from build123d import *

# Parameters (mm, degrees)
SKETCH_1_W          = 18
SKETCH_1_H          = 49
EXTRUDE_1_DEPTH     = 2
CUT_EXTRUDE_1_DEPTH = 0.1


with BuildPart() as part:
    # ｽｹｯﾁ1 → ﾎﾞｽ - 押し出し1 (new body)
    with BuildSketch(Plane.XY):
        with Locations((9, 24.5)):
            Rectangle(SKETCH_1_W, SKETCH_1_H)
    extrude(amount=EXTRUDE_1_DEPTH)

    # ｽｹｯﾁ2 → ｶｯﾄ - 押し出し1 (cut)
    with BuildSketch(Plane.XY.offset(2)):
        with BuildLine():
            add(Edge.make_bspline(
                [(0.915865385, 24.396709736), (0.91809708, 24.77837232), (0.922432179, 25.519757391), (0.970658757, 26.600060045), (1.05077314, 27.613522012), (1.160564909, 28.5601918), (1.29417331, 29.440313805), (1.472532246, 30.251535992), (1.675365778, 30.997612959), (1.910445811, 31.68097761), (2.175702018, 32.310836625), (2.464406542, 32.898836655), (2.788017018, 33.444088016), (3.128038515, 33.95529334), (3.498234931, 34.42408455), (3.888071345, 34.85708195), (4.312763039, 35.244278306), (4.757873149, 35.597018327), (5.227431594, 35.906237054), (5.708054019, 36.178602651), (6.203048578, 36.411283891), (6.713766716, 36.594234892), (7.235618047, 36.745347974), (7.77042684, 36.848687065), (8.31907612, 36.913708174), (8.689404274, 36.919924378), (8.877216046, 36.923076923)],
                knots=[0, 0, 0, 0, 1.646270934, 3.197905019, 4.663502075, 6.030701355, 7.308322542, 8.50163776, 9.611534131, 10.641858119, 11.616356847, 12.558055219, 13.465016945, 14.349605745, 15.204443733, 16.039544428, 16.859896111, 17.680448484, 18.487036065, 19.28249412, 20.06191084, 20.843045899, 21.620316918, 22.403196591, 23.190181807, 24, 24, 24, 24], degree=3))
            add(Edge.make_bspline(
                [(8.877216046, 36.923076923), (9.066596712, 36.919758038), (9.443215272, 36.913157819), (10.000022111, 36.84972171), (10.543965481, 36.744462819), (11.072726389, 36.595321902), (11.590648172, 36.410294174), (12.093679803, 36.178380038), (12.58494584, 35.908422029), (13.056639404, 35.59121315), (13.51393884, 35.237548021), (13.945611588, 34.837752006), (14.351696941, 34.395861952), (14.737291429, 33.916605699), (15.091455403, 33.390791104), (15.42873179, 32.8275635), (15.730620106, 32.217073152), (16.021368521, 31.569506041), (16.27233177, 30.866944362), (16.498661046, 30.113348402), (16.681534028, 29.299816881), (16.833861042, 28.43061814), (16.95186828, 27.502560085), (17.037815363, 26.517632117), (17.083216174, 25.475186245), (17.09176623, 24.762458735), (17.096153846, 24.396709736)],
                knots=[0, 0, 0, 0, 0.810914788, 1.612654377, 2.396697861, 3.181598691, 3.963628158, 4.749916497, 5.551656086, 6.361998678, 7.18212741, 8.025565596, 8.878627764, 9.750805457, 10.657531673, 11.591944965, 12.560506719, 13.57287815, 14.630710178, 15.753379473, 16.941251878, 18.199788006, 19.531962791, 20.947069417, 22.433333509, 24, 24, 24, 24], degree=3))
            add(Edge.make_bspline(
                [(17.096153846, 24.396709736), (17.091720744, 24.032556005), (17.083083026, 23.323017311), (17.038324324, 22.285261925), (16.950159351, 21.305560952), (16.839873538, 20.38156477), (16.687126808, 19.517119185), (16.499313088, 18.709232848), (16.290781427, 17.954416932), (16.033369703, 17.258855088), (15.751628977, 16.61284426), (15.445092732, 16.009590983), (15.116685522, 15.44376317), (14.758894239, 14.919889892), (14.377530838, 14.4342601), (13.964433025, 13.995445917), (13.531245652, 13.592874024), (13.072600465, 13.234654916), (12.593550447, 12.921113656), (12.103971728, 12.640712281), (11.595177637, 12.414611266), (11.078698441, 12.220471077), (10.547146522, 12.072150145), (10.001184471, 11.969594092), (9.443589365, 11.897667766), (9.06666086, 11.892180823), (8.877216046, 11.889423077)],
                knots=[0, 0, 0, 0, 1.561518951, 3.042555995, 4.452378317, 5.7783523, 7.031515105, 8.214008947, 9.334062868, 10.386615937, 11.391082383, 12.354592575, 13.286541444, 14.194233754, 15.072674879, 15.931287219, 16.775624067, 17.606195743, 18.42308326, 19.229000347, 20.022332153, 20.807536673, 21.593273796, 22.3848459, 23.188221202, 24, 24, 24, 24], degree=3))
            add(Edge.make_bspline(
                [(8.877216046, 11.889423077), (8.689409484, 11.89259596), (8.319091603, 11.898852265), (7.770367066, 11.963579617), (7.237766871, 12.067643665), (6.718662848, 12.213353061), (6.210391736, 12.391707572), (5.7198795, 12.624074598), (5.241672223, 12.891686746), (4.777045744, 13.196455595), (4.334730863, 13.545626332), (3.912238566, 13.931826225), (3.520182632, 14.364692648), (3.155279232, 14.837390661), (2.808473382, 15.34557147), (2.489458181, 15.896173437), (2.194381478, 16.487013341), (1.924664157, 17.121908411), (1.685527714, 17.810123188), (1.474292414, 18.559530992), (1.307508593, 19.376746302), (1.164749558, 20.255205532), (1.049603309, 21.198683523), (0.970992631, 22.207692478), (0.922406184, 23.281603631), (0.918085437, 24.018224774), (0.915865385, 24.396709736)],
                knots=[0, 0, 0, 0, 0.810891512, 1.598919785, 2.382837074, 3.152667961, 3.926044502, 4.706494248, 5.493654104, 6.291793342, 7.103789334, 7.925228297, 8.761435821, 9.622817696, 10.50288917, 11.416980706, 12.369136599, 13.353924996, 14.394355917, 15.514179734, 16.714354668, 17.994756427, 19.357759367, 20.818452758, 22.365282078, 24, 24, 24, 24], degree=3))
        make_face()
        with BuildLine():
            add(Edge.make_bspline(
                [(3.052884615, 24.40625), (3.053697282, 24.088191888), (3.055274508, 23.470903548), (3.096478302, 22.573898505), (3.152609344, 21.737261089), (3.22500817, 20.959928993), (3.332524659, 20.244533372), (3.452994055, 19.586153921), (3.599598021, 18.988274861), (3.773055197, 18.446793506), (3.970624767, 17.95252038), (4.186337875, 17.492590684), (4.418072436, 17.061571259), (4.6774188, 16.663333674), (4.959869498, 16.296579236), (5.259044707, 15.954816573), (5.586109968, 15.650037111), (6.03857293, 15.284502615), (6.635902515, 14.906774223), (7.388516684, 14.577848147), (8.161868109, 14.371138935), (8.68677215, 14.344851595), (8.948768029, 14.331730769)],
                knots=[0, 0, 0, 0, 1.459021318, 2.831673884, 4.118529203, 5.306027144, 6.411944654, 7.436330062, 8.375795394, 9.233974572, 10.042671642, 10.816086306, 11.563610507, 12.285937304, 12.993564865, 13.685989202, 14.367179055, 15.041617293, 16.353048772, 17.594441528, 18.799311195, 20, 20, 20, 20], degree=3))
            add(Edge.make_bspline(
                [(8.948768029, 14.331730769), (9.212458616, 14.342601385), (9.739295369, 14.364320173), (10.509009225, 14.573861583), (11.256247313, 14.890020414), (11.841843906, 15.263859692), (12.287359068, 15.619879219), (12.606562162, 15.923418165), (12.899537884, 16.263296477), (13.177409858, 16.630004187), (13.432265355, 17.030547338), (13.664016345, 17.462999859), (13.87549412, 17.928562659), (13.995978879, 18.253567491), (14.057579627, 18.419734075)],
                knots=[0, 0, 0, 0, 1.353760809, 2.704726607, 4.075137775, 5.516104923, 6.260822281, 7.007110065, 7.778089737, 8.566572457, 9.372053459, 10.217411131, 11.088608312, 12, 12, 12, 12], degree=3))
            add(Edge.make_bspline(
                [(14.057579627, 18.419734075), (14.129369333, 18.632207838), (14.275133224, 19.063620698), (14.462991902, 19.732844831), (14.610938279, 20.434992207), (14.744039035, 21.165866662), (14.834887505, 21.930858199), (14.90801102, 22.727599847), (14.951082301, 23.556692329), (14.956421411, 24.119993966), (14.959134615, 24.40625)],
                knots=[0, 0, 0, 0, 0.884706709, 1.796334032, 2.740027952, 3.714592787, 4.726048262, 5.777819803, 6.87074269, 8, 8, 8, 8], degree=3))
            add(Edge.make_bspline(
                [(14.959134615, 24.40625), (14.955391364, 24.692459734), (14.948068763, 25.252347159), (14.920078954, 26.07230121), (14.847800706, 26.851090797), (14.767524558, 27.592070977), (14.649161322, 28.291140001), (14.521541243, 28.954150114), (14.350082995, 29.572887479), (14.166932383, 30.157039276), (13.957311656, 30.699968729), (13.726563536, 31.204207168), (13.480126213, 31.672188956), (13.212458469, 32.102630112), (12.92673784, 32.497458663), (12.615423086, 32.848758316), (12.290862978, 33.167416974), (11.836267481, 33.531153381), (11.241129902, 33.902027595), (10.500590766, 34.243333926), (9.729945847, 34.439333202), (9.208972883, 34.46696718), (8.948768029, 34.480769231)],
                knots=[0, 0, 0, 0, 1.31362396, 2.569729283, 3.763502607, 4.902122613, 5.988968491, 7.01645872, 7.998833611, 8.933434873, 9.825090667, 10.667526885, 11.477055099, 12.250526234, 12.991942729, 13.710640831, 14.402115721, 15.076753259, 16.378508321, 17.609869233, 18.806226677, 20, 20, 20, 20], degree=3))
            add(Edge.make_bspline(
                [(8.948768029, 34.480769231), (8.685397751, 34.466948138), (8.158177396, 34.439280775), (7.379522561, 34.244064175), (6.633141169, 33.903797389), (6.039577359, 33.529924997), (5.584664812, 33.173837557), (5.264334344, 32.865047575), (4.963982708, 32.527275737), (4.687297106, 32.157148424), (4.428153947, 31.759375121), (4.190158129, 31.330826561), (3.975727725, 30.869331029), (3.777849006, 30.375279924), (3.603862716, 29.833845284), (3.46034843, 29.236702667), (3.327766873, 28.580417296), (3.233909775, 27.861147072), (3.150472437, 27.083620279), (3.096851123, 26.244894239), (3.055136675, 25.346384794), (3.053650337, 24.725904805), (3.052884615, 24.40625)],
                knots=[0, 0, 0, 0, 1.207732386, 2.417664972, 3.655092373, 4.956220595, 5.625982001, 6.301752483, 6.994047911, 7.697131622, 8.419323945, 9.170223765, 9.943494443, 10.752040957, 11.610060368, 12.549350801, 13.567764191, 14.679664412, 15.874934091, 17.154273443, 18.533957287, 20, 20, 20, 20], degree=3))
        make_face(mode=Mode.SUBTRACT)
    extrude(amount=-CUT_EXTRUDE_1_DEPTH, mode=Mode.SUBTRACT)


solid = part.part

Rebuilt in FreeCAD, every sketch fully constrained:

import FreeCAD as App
import Part
import Sketcher
from FreeCAD import Vector

doc = App.newDocument("Part")
body = doc.addObject("PartDesign::Body", "Body")

# Sketch on XY plane
sketch1 = body.newObject("Sketcher::SketchObject", "Sketch")
sketch1.AttachmentSupport = (doc.getObject("XY_Plane"), [""])
sketch1.MapMode = "FlatFace"
sketch1.addGeometry(Part.LineSegment(Vector(0, 49, 0), Vector(0, 0, 0)), False)
sketch1.addGeometry(Part.LineSegment(Vector(0, 0, 0), Vector(18, 0, 0)), False)
sketch1.addGeometry(Part.LineSegment(Vector(18, 0, 0), Vector(18, 49, 0)), False)
sketch1.addGeometry(Part.LineSegment(Vector(18, 49, 0), Vector(0, 49, 0)), False)
sketch1.addConstraint(Sketcher.Constraint("Coincident", 0, 2, 1, 1))
sketch1.addConstraint(Sketcher.Constraint("Coincident", 1, 2, 2, 1))
sketch1.addConstraint(Sketcher.Constraint("Coincident", 2, 2, 3, 1))
sketch1.addConstraint(Sketcher.Constraint("Coincident", 3, 2, 0, 1))
sketch1.addConstraint(Sketcher.Constraint("Vertical", 0))
sketch1.addConstraint(Sketcher.Constraint("Horizontal", 1))
sketch1.addConstraint(Sketcher.Constraint("Vertical", 2))
sketch1.addConstraint(Sketcher.Constraint("Horizontal", 3))
sketch1.addConstraint(Sketcher.Constraint("Coincident", 0, 2, -1, 1))
sketch1.addConstraint(Sketcher.Constraint("DistanceX", 1, 1, 1, 2, 18.0))
sketch1.addConstraint(Sketcher.Constraint("DistanceY", 0, 2, 0, 1, 49.0))
pad1 = body.newObject("PartDesign::Pad", "Pad")
pad1.Profile = sketch1
pad1.Length = 2

# Sketch on XY plane
sketch2 = body.newObject("Sketcher::SketchObject", "Sketch001")
sketch2.AttachmentSupport = (doc.getObject("XY_Plane"), [""])
sketch2.MapMode = "FlatFace"
sketch2.AttachmentOffset = App.Placement(Vector(0, 0, 2), App.Rotation())
sketch2.addGeometry(Part.BSplineCurve([Vector(0.915865, 24.39671, 0), Vector(0.918097, 24.778372, 0), Vector(0.922432, 25.519757, 0), Vector(0.970659, 26.60006, 0), Vector(1.050773, 27.613522, 0), Vector(1.160565, 28.560192, 0), Vector(1.294173, 29.440314, 0), Vector(1.472532, 30.251536, 0), Vector(1.675366, 30.997613, 0), Vector(1.910446, 31.680978, 0), Vector(2.175702, 32.310837, 0), Vector(2.464407, 32.898837, 0), Vector(2.788017, 33.444088, 0), Vector(3.128039, 33.955293, 0), Vector(3.498235, 34.424085, 0), Vector(3.888071, 34.857082, 0), Vector(4.312763, 35.244278, 0), Vector(4.757873, 35.597018, 0), Vector(5.227432, 35.906237, 0), Vector(5.708054, 36.178603, 0), Vector(6.203049, 36.411284, 0), Vector(6.713767, 36.594235, 0), Vector(7.235618, 36.745348, 0), Vector(7.770427, 36.848687, 0), Vector(8.319076, 36.913708, 0), Vector(8.689404, 36.919924, 0), Vector(8.877216, 36.923077, 0)], [4, 1, 1, 1, 1, 1, 1, 1, 1, 1, 1, 1, 1, 1, 1, 1, 1, 1, 1, 1, 1, 1, 1, 1, 4], [0, 1.646270934, 3.197905019, 4.663502075, 6.030701355, 7.308322542, 8.50163776, 9.611534131, 10.641858119, 11.616356847, 12.558055219, 13.465016945, 14.349605745, 15.204443733, 16.039544428, 16.859896111, 17.680448484, 18.487036065, 19.28249412, 20.06191084, 20.843045899, 21.620316918, 22.403196591, 23.190181807, 24], False, 3, [1, 1, 1, 1, 1, 1, 1, 1, 1, 1, 1, 1, 1, 1, 1, 1, 1, 1, 1, 1, 1, 1, 1, 1, 1, 1, 1], False), False)
sketch2.addGeometry(Part.BSplineCurve([Vector(8.877216, 11.889423, 0), Vector(8.689409, 11.892596, 0), Vector(8.319092, 11.898852, 0), Vector(7.770367, 11.96358, 0), Vector(7.237767, 12.067644, 0), Vector(6.718663, 12.213353, 0), Vector(6.210392, 12.391708, 0), Vector(5.71988, 12.624075, 0), Vector(5.241672, 12.891687, 0), Vector(4.777046, 13.196456, 0), Vector(4.334731, 13.545626, 0), Vector(3.912239, 13.931826, 0), Vector(3.520183, 14.364693, 0), Vector(3.155279, 14.837391, 0), Vector(2.808473, 15.345571, 0), Vector(2.489458, 15.896173, 0), Vector(2.194381, 16.487013, 0), Vector(1.924664, 17.121908, 0), Vector(1.685528, 17.810123, 0), Vector(1.474292, 18.559531, 0), Vector(1.307509, 19.376746, 0), Vector(1.16475, 20.255206, 0), Vector(1.049603, 21.198684, 0), Vector(0.970993, 22.207692, 0), Vector(0.922406, 23.281604, 0), Vector(0.918085, 24.018225, 0), Vector(0.915865, 24.39671, 0)], [4, 1, 1, 1, 1, 1, 1, 1, 1, 1, 1, 1, 1, 1, 1, 1, 1, 1, 1, 1, 1, 1, 1, 1, 4], [0, 0.810891512, 1.598919785, 2.382837074, 3.152667961, 3.926044502, 4.706494248, 5.493654104, 6.291793342, 7.103789334, 7.925228297, 8.761435821, 9.622817696, 10.50288917, 11.416980706, 12.369136599, 13.353924996, 14.394355917, 15.514179734, 16.714354668, 17.994756427, 19.357759367, 20.818452758, 22.365282078, 24], False, 3, [1, 1, 1, 1, 1, 1, 1, 1, 1, 1, 1, 1, 1, 1, 1, 1, 1, 1, 1, 1, 1, 1, 1, 1, 1, 1, 1], False), False)
sketch2.addGeometry(Part.BSplineCurve([Vector(17.096154, 24.39671, 0), Vector(17.091721, 24.032556, 0), Vector(17.083083, 23.323017, 0), Vector(17.038324, 22.285262, 0), Vector(16.950159, 21.305561, 0), Vector(16.839874, 20.381565, 0), Vector(16.687127, 19.517119, 0), Vector(16.499313, 18.709233, 0), Vector(16.290781, 17.954417, 0), Vector(16.03337, 17.258855, 0), Vector(15.751629, 16.612844, 0), Vector(15.445093, 16.009591, 0), Vector(15.116686, 15.443763, 0), Vector(14.758894, 14.91989, 0), Vector(14.377531, 14.43426, 0), Vector(13.964433, 13.995446, 0), Vector(13.531246, 13.592874, 0), Vector(13.0726, 13.234655, 0), Vector(12.59355, 12.921114, 0), Vector(12.103972, 12.640712, 0), Vector(11.595178, 12.414611, 0), Vector(11.078698, 12.220471, 0), Vector(10.547147, 12.07215, 0), Vector(10.001184, 11.969594, 0), Vector(9.443589, 11.897668, 0), Vector(9.066661, 11.892181, 0), Vector(8.877216, 11.889423, 0)], [4, 1, 1, 1, 1, 1, 1, 1, 1, 1, 1, 1, 1, 1, 1, 1, 1, 1, 1, 1, 1, 1, 1, 1, 4], [0, 1.561518951, 3.042555995, 4.452378317, 5.7783523, 7.031515105, 8.214008947, 9.334062868, 10.386615937, 11.391082383, 12.354592575, 13.286541444, 14.194233754, 15.072674879, 15.931287219, 16.775624067, 17.606195743, 18.42308326, 19.229000347, 20.022332153, 20.807536673, 21.593273796, 22.3848459, 23.188221202, 24], False, 3, [1, 1, 1, 1, 1, 1, 1, 1, 1, 1, 1, 1, 1, 1, 1, 1, 1, 1, 1, 1, 1, 1, 1, 1, 1, 1, 1], False), False)
sketch2.addGeometry(Part.BSplineCurve([Vector(8.877216, 36.923077, 0), Vector(9.066597, 36.919758, 0), Vector(9.443215, 36.913158, 0), Vector(10.000022, 36.849722, 0), Vector(10.543965, 36.744463, 0), Vector(11.072726, 36.595322, 0), Vector(11.590648, 36.410294, 0), Vector(12.09368, 36.17838, 0), Vector(12.584946, 35.908422, 0), Vector(13.056639, 35.591213, 0), Vector(13.513939, 35.237548, 0), Vector(13.945612, 34.837752, 0), Vector(14.351697, 34.395862, 0), Vector(14.737291, 33.916606, 0), Vector(15.091455, 33.390791, 0), Vector(15.428732, 32.827563, 0), Vector(15.73062, 32.217073, 0), Vector(16.021369, 31.569506, 0), Vector(16.272332, 30.866944, 0), Vector(16.498661, 30.113348, 0), Vector(16.681534, 29.299817, 0), Vector(16.833861, 28.430618, 0), Vector(16.951868, 27.50256, 0), Vector(17.037815, 26.517632, 0), Vector(17.083216, 25.475186, 0), Vector(17.091766, 24.762459, 0), Vector(17.096154, 24.39671, 0)], [4, 1, 1, 1, 1, 1, 1, 1, 1, 1, 1, 1, 1, 1, 1, 1, 1, 1, 1, 1, 1, 1, 1, 1, 4], [0, 0.810914788, 1.612654377, 2.396697861, 3.181598691, 3.963628158, 4.749916497, 5.551656086, 6.361998678, 7.18212741, 8.025565596, 8.878627764, 9.750805457, 10.657531673, 11.591944965, 12.560506719, 13.57287815, 14.630710178, 15.753379473, 16.941251878, 18.199788006, 19.531962791, 20.947069417, 22.433333509, 24], False, 3, [1, 1, 1, 1, 1, 1, 1, 1, 1, 1, 1, 1, 1, 1, 1, 1, 1, 1, 1, 1, 1, 1, 1, 1, 1, 1, 1], False), False)
sketch2.addGeometry(Part.BSplineCurve([Vector(8.948768, 34.480769, 0), Vector(8.685398, 34.466948, 0), Vector(8.158177, 34.439281, 0), Vector(7.379523, 34.244064, 0), Vector(6.633141, 33.903797, 0), Vector(6.039577, 33.529925, 0), Vector(5.584665, 33.173838, 0), Vector(5.264334, 32.865048, 0), Vector(4.963983, 32.527276, 0), Vector(4.687297, 32.157148, 0), Vector(4.428154, 31.759375, 0), Vector(4.190158, 31.330827, 0), Vector(3.975728, 30.869331, 0), Vector(3.777849, 30.37528, 0), Vector(3.603863, 29.833845, 0), Vector(3.460348, 29.236703, 0), Vector(3.327767, 28.580417, 0), Vector(3.23391, 27.861147, 0), Vector(3.150472, 27.08362, 0), Vector(3.096851, 26.244894, 0), Vector(3.055137, 25.346385, 0), Vector(3.05365, 24.725905, 0), Vector(3.052885, 24.40625, 0)], [4, 1, 1, 1, 1, 1, 1, 1, 1, 1, 1, 1, 1, 1, 1, 1, 1, 1, 1, 1, 4], [0, 1.207732386, 2.417664972, 3.655092373, 4.956220595, 5.625982001, 6.301752483, 6.994047911, 7.697131622, 8.419323945, 9.170223765, 9.943494443, 10.752040957, 11.610060368, 12.549350801, 13.567764191, 14.679664412, 15.874934091, 17.154273443, 18.533957287, 20], False, 3, [1, 1, 1, 1, 1, 1, 1, 1, 1, 1, 1, 1, 1, 1, 1, 1, 1, 1, 1, 1, 1, 1, 1], False), False)
sketch2.addGeometry(Part.BSplineCurve([Vector(14.959135, 24.40625, 0), Vector(14.955391, 24.69246, 0), Vector(14.948069, 25.252347, 0), Vector(14.920079, 26.072301, 0), Vector(14.847801, 26.851091, 0), Vector(14.767525, 27.592071, 0), Vector(14.649161, 28.29114, 0), Vector(14.521541, 28.95415, 0), Vector(14.350083, 29.572887, 0), Vector(14.166932, 30.157039, 0), Vector(13.957312, 30.699969, 0), Vector(13.726564, 31.204207, 0), Vector(13.480126, 31.672189, 0), Vector(13.212458, 32.10263, 0), Vector(12.926738, 32.497459, 0), Vector(12.615423, 32.848758, 0), Vector(12.290863, 33.167417, 0), Vector(11.836267, 33.531153, 0), Vector(11.24113, 33.902028, 0), Vector(10.500591, 34.243334, 0), Vector(9.729946, 34.439333, 0), Vector(9.208973, 34.466967, 0), Vector(8.948768, 34.480769, 0)], [4, 1, 1, 1, 1, 1, 1, 1, 1, 1, 1, 1, 1, 1, 1, 1, 1, 1, 1, 1, 4], [0, 1.31362396, 2.569729283, 3.763502607, 4.902122613, 5.988968491, 7.01645872, 7.998833611, 8.933434873, 9.825090667, 10.667526885, 11.477055099, 12.250526234, 12.991942729, 13.710640831, 14.402115721, 15.076753259, 16.378508321, 17.609869233, 18.806226677, 20], False, 3, [1, 1, 1, 1, 1, 1, 1, 1, 1, 1, 1, 1, 1, 1, 1, 1, 1, 1, 1, 1, 1, 1, 1], False), False)
sketch2.addGeometry(Part.BSplineCurve([Vector(14.05758, 18.419734, 0), Vector(14.129369, 18.632208, 0), Vector(14.275133, 19.063621, 0), Vector(14.462992, 19.732845, 0), Vector(14.610938, 20.434992, 0), Vector(14.744039, 21.165867, 0), Vector(14.834888, 21.930858, 0), Vector(14.908011, 22.7276, 0), Vector(14.951082, 23.556692, 0), Vector(14.956421, 24.119994, 0), Vector(14.959135, 24.40625, 0)], [4, 1, 1, 1, 1, 1, 1, 1, 4], [0, 0.884706709, 1.796334032, 2.740027952, 3.714592787, 4.726048262, 5.777819803, 6.87074269, 8], False, 3, [1, 1, 1, 1, 1, 1, 1, 1, 1, 1, 1], False), False)
sketch2.addGeometry(Part.BSplineCurve([Vector(8.948768, 14.331731, 0), Vector(9.212459, 14.342601, 0), Vector(9.739295, 14.36432, 0), Vector(10.509009, 14.573862, 0), Vector(11.256247, 14.89002, 0), Vector(11.841844, 15.26386, 0), Vector(12.287359, 15.619879, 0), Vector(12.606562, 15.923418, 0), Vector(12.899538, 16.263296, 0), Vector(13.17741, 16.630004, 0), Vector(13.432265, 17.030547, 0), Vector(13.664016, 17.463, 0), Vector(13.875494, 17.928563, 0), Vector(13.995979, 18.253567, 0), Vector(14.05758, 18.419734, 0)], [4, 1, 1, 1, 1, 1, 1, 1, 1, 1, 1, 1, 4], [0, 1.353760809, 2.704726607, 4.075137775, 5.516104923, 6.260822281, 7.007110065, 7.778089737, 8.566572457, 9.372053459, 10.217411131, 11.088608312, 12], False, 3, [1, 1, 1, 1, 1, 1, 1, 1, 1, 1, 1, 1, 1, 1, 1], False), False)
sketch2.addGeometry(Part.BSplineCurve([Vector(3.052885, 24.40625, 0), Vector(3.053697, 24.088192, 0), Vector(3.055275, 23.470904, 0), Vector(3.096478, 22.573899, 0), Vector(3.152609, 21.737261, 0), Vector(3.225008, 20.959929, 0), Vector(3.332525, 20.244533, 0), Vector(3.452994, 19.586154, 0), Vector(3.599598, 18.988275, 0), Vector(3.773055, 18.446794, 0), Vector(3.970625, 17.95252, 0), Vector(4.186338, 17.492591, 0), Vector(4.418072, 17.061571, 0), Vector(4.677419, 16.663334, 0), Vector(4.959869, 16.296579, 0), Vector(5.259045, 15.954817, 0), Vector(5.58611, 15.650037, 0), Vector(6.038573, 15.284503, 0), Vector(6.635903, 14.906774, 0), Vector(7.388517, 14.577848, 0), Vector(8.161868, 14.371139, 0), Vector(8.686772, 14.344852, 0), Vector(8.948768, 14.331731, 0)], [4, 1, 1, 1, 1, 1, 1, 1, 1, 1, 1, 1, 1, 1, 1, 1, 1, 1, 1, 1, 4], [0, 1.459021318, 2.831673884, 4.118529203, 5.306027144, 6.411944654, 7.436330062, 8.375795394, 9.233974572, 10.042671642, 10.816086306, 11.563610507, 12.285937304, 12.993564865, 13.685989202, 14.367179055, 15.041617293, 16.353048772, 17.594441528, 18.799311195, 20], False, 3, [1, 1, 1, 1, 1, 1, 1, 1, 1, 1, 1, 1, 1, 1, 1, 1, 1, 1, 1, 1, 1, 1, 1], False), False)
sketch2.addConstraint(Sketcher.Constraint("Block", 0))
sketch2.addConstraint(Sketcher.Constraint("Block", 1))
sketch2.addConstraint(Sketcher.Constraint("Block", 2))
sketch2.addConstraint(Sketcher.Constraint("Block", 3))
sketch2.addConstraint(Sketcher.Constraint("Block", 4))
sketch2.addConstraint(Sketcher.Constraint("Block", 5))
sketch2.addConstraint(Sketcher.Constraint("Block", 6))
sketch2.addConstraint(Sketcher.Constraint("Block", 7))
sketch2.addConstraint(Sketcher.Constraint("Block", 8))
pocket1 = body.newObject("PartDesign::Pocket", "Pocket")
pocket1.Profile = sketch2
pocket1.Length = 0.1

doc.recompute()
